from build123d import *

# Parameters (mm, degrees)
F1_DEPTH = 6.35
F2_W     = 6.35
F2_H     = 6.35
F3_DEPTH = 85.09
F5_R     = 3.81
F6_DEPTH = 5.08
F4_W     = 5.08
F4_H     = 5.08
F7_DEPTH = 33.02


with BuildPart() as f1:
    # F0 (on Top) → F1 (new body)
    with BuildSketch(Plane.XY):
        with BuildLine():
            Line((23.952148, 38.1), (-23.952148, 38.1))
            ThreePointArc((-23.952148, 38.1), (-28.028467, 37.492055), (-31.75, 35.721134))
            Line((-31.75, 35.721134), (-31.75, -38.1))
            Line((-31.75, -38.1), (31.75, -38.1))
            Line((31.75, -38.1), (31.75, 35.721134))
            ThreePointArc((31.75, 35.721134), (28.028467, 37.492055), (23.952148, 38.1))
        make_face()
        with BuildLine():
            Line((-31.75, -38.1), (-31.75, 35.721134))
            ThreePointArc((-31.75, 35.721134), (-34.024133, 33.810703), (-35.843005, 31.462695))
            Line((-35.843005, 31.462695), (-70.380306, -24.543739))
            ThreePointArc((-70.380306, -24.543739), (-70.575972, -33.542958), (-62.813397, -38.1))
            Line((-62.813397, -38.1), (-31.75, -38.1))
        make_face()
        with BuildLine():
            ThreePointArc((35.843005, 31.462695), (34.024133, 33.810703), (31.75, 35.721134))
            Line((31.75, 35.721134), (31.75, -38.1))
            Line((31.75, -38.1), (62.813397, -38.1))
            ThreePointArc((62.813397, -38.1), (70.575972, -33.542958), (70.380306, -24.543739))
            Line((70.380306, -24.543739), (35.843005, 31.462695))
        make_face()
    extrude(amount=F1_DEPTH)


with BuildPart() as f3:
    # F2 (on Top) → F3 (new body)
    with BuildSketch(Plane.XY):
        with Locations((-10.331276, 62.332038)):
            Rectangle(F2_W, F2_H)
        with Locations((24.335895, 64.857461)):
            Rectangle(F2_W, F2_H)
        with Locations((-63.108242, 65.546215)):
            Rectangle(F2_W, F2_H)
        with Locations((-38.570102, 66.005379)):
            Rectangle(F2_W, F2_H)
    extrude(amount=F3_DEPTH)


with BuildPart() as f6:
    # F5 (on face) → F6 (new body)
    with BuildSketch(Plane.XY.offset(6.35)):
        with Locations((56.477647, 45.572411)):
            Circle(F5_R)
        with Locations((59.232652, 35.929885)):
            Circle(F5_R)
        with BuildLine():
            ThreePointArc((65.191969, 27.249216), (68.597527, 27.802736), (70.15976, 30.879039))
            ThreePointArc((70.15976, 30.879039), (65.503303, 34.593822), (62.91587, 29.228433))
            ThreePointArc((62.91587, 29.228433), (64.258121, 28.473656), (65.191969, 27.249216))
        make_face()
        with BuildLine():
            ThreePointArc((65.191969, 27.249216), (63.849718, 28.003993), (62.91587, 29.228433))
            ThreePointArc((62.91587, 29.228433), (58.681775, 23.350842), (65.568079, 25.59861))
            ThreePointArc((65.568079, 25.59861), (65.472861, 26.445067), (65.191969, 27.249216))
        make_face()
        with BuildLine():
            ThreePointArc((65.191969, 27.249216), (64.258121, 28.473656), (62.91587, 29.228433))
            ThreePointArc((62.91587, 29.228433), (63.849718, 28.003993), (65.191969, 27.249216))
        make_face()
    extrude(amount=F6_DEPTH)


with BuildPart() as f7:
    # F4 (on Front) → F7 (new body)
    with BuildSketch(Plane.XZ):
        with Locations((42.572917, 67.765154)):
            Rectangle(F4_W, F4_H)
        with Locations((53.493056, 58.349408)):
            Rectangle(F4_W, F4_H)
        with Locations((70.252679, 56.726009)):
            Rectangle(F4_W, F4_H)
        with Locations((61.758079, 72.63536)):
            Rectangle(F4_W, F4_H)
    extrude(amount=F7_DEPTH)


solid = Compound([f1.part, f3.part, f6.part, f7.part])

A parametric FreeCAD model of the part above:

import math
import FreeCAD as App
import Part
import Sketcher
Q = App.Units.Quantity

doc = App.newDocument("Part")
body = doc.addObject("PartDesign::Body", "Body")

sketch1 = doc.addObject("Sketcher::SketchObject", "Sketch")
body.addObject(sketch1)
sketch1.AttachmentSupport = (doc.XY_Plane, [""])
sketch1.MapMode = "FlatFace"
sketch1.addGeometry([
    Part.LineSegment(App.Vector(24, 38, 0), App.Vector(-24, 38, 0)),
    Part.ArcOfCircle(Part.Circle(App.Vector(-24, 24, 0), App.Vector(0, 0, 1), 14), math.radians(90), math.radians(124)),
    Part.ArcOfCircle(Part.Circle(App.Vector(-24, 24, 0), App.Vector(0, 0, 1), 14), math.radians(124), math.radians(148)),
    Part.LineSegment(App.Vector(-36, 31, 0), App.Vector(-70, -25, 0)),
    Part.ArcOfCircle(Part.Circle(App.Vector(-63, -29, 0), App.Vector(0, 0, 1), 9), math.radians(148), math.radians(270)),
    Part.LineSegment(App.Vector(-63, -38, 0), App.Vector(63, -38, 0)),
    Part.ArcOfCircle(Part.Circle(App.Vector(63, -29, 0), App.Vector(0, 0, 1), 9), math.radians(-90), math.radians(32)),
    Part.LineSegment(App.Vector(70, -25, 0), App.Vector(36, 31, 0)),
    Part.ArcOfCircle(Part.Circle(App.Vector(24, 24, 0), App.Vector(0, 0, 1), 14), math.radians(32), math.radians(56)),
    Part.ArcOfCircle(Part.Circle(App.Vector(24, 24, 0), App.Vector(0, 0, 1), 14), math.radians(56), math.radians(90)),
], False)
sketch1.addConstraint([
    Sketcher.Constraint("Tangent", 0, 2, 1, 1),
    Sketcher.Constraint("Tangent", 1, 2, 2, 1),
    Sketcher.Constraint("Tangent", 2, 2, 3, 1),
    Sketcher.Constraint("Tangent", 3, 2, 4, 1),
    Sketcher.Constraint("Tangent", 4, 2, 5, 1),
    Sketcher.Constraint("Tangent", 5, 2, 6, 1),
    Sketcher.Constraint("Tangent", 6, 2, 7, 1),
    Sketcher.Constraint("Tangent", 7, 2, 8, 1),
    Sketcher.Constraint("Tangent", 8, 2, 9, 1),
    Sketcher.Constraint("Tangent", 9, 2, 0, 1),
    Sketcher.Constraint("Horizontal", 0),
    Sketcher.Constraint("Horizontal", 5),
    Sketcher.Constraint("Equal", 4, 6),
    Sketcher.Constraint("Equal", 2, 8),
    Sketcher.Constraint("Equal", 1, 9),
    Sketcher.Constraint("Symmetric", 1, 3, 8, 3, -2),
    Sketcher.Constraint("Horizontal", 3, 2, 6, 2),
    Sketcher.Constraint("Horizontal", 1, 2, 8, 2),
    Sketcher.Constraint("Radius", 1, Q("0.55 in")),
    Sketcher.Constraint("Radius", 4, Q("0.35 in")),
    Sketcher.Constraint("DistanceY", -1, 1, 0, 2, Q("1.5 in")),
    Sketcher.Constraint("DistanceY", 4, 2, -1, 1, Q("1.5 in")),
    Sketcher.Constraint("DistanceX", 1, 2, -1, 1, Q("1.25 in")),
    Sketcher.Constraint("DistanceX", 1, 3, 8, 3, Q("47.904299 mm")),
    Sketcher.Constraint("DistanceX", 3, 2, 2, 2, Q("34.537301 mm")),
])
pad1 = doc.addObject("PartDesign::Pad", "Pad")
body.addObject(pad1)
pad1.Profile = sketch1
pad1.Length = Q("0.25 in")
body2 = doc.addObject("PartDesign::Body", "Body001")
body2.AllowCompound = True

sketch2 = doc.addObject("Sketcher::SketchObject", "Sketch001")
body2.addObject(sketch2)
sketch2.AttachmentSupport = (doc.getObject("XY_Plane001"), [""])
sketch2.MapMode = "FlatFace"
sketch2.addGeometry([
    Part.LineSegment(App.Vector(-14, 66, 0), App.Vector(-14, 59, 0)),
    Part.LineSegment(App.Vector(-14, 59, 0), App.Vector(-7, 59, 0)),
    Part.LineSegment(App.Vector(-7, 59, 0), App.Vector(-7, 66, 0)),
    Part.LineSegment(App.Vector(-7, 66, 0), App.Vector(-14, 66, 0)),
    Part.LineSegment(App.Vector(21, 68, 0), App.Vector(21, 62, 0)),
    Part.LineSegment(App.Vector(21, 62, 0), App.Vector(28, 62, 0)),
    Part.LineSegment(App.Vector(28, 62, 0), App.Vector(28, 68, 0)),
    Part.LineSegment(App.Vector(28, 68, 0), App.Vector(21, 68, 0)),
    Part.LineSegment(App.Vector(-66, 69, 0), App.Vector(-66, 62, 0)),
    Part.LineSegment(App.Vector(-66, 62, 0), App.Vector(-60, 62, 0)),
    Part.LineSegment(App.Vector(-60, 62, 0), App.Vector(-60, 69, 0)),
    Part.LineSegment(App.Vector(-60, 69, 0), App.Vector(-66, 69, 0)),
    Part.LineSegment(App.Vector(-42, 69, 0), App.Vector(-42, 63, 0)),
    Part.LineSegment(App.Vector(-42, 63, 0), App.Vector(-35, 63, 0)),
    Part.LineSegment(App.Vector(-35, 63, 0), App.Vector(-35, 69, 0)),
    Part.LineSegment(App.Vector(-35, 69, 0), App.Vector(-42, 69, 0)),
], False)
sketch2.addConstraint([
    Sketcher.Constraint("Coincident", 0, 2, 1, 1),
    Sketcher.Constraint("Coincident", 1, 2, 2, 1),
    Sketcher.Constraint("Coincident", 2, 2, 3, 1),
    Sketcher.Constraint("Coincident", 3, 2, 0, 1),
    Sketcher.Constraint("Coincident", 4, 2, 5, 1),
    Sketcher.Constraint("Coincident", 5, 2, 6, 1),
    Sketcher.Constraint("Coincident", 6, 2, 7, 1),
    Sketcher.Constraint("Coincident", 7, 2, 4, 1),
    Sketcher.Constraint("Coincident", 8, 2, 9, 1),
    Sketcher.Constraint("Coincident", 9, 2, 10, 1),
    Sketcher.Constraint("Coincident", 10, 2, 11, 1),
    Sketcher.Constraint("Coincident", 11, 2, 8, 1),
    Sketcher.Constraint("Coincident", 12, 2, 13, 1),
    Sketcher.Constraint("Coincident", 13, 2, 14, 1),
    Sketcher.Constraint("Coincident", 14, 2, 15, 1),
    Sketcher.Constraint("Coincident", 15, 2, 12, 1),
    Sketcher.Constraint("Vertical", 0),
    Sketcher.Constraint("Horizontal", 1),
    Sketcher.Constraint("Vertical", 2),
    Sketcher.Constraint("Horizontal", 3),
    Sketcher.Constraint("Vertical", 4),
    Sketcher.Constraint("Horizontal", 5),
    Sketcher.Constraint("Vertical", 6),
    Sketcher.Constraint("Horizontal", 7),
    Sketcher.Constraint("Vertical", 8),
    Sketcher.Constraint("Horizontal", 9),
    Sketcher.Constraint("Vertical", 10),
    Sketcher.Constraint("Horizontal", 11),
    Sketcher.Constraint("Vertical", 12),
    Sketcher.Constraint("Horizontal", 13),
    Sketcher.Constraint("Vertical", 14),
    Sketcher.Constraint("Horizontal", 15),
    Sketcher.Constraint("Equal", 3, 5),
    Sketcher.Constraint("Equal", 7, 9),
    Sketcher.Constraint("Equal", 11, 13),
    Sketcher.Constraint("Equal", 15, 0),
    Sketcher.Constraint("Equal", 2, 4),
    Sketcher.Constraint("Equal", 6, 8),
    Sketcher.Constraint("Equal", 10, 12),
    Sketcher.Constraint("DistanceX", 1, 1, 1, 2, Q("0.25 in")),
    Sketcher.Constraint("DistanceY", -1, 1, 4, 2, Q("61.682461 mm")),
    Sketcher.Constraint("DistanceX", 8, 2, -1, 1, Q("66.283242 mm")),
    Sketcher.Constraint("DistanceY", -1, 1, 12, 2, Q("62.830379 mm")),
    Sketcher.Constraint("DistanceX", 1, 2, 4, 2, Q("28.317171 mm")),
    Sketcher.Constraint("DistanceX", 9, 2, 12, 2, Q("18.18814 mm")),
    Sketcher.Constraint("DistanceY", 12, 2, 3, 2, Q("2.676659 mm")),
    Sketcher.Constraint("DistanceX", 0, 2, -1, 1, Q("13.506276 mm")),
    Sketcher.Constraint("DistanceY", -1, 1, 8, 2, Q("62.371215 mm")),
])
pad2 = doc.addObject("PartDesign::Pad", "Pad001")
body2.addObject(pad2)
pad2.Profile = sketch2
pad2.Length = Q("3.35 in")
body3 = doc.addObject("PartDesign::Body", "Body002")
body3.AllowCompound = True

sketch3 = doc.addObject("Sketcher::SketchObject", "Sketch002")
body3.addObject(sketch3)
sketch3.AttachmentSupport = (doc.getObject("XY_Plane002"), [""])
sketch3.MapMode = "FlatFace"
sketch3.AttachmentOffset = App.Placement(App.Vector(0, 0, 0.25 * 25.4), App.Rotation())
sketch3.addGeometry([
    Part.Circle(App.Vector(56.5, 45.6, 0), App.Vector(0, 0, 1), 3.8),
    Part.Circle(App.Vector(59.2, 35.9, 0), App.Vector(0, 0, 1), 3.8),
    Part.ArcOfCircle(Part.Circle(App.Vector(66.3, 30.9, 0), App.Vector(0, 0, 1), 3.8), math.radians(0), math.radians(206)),
    Part.ArcOfCircle(Part.Circle(App.Vector(61.8, 25.6, 0), App.Vector(0, 0, 1), 3.8), math.radians(72), math.radians(360)),
    Part.ArcOfCircle(Part.Circle(App.Vector(61.8, 25.6, 0), App.Vector(0, 0, 1), 3.8), math.radians(0), math.radians(26)),
    Part.ArcOfCircle(Part.Circle(App.Vector(66.3, 30.9, 0), App.Vector(0, 0, 1), 3.8), math.radians(-108), math.radians(0)),
], False)
sketch3.addConstraint([
    Sketcher.Constraint("Coincident", 2, 2, 3, 1),
    Sketcher.Constraint("Tangent", 3, 2, 4, 1),
    Sketcher.Constraint("Coincident", 4, 2, 5, 1),
    Sketcher.Constraint("Tangent", 5, 2, 2, 1),
    Sketcher.Constraint("Equal", 0, 1),
    Sketcher.Constraint("Equal", 1, 2),
    Sketcher.Constraint("Equal", 2, 3),
    Sketcher.Constraint("Equal", 3, 5),
    Sketcher.Constraint("Horizontal", 2, 3, 5, 2),
    Sketcher.Constraint("Diameter", 0, Q("0.3 in")),
    Sketcher.Constraint("Radius", 4, Q("3.810029 mm")),
    Sketcher.Constraint("DistanceY", 3, 3, 0, 3, Q("19.973802 mm")),
    Sketcher.Constraint("DistanceX", 1, 3, 4, 3, Q("2.525398 mm")),
    Sketcher.Constraint("DistanceX", 2, 2, 4, 2, Q("2.276099 mm")),
    Sketcher.Constraint("DistanceY", -1, 1, 0, 3, Q("45.572411 mm")),
    Sketcher.Constraint("DistanceX", -1, 1, 2, 3, Q("66.34976 mm")),
    Sketcher.Constraint("DistanceY", -1, 1, 2, 3, Q("30.879039 mm")),
    Sketcher.Constraint("DistanceY", -1, 1, 3, 2, Q("25.59861 mm")),
    Sketcher.Constraint("DistanceX", 0, 3, 3, 3, Q("5.280432 mm")),
    Sketcher.Constraint("DistanceY", 4, 3, 1, 3, Q("10.331281 mm")),
])
pad3 = doc.addObject("PartDesign::Pad", "Pad002")
body3.addObject(pad3)
pad3.Profile = sketch3
pad3.Length = Q("0.2 in")
body4 = doc.addObject("PartDesign::Body", "Body003")
body4.AllowCompound = True

sketch4 = doc.addObject("Sketcher::SketchObject", "Sketch003")
body4.addObject(sketch4)
sketch4.AttachmentSupport = (doc.getObject("XZ_Plane003"), [""])
sketch4.MapMode = "FlatFace"
sketch4.addGeometry([
    Part.LineSegment(App.Vector(40, 70, 0), App.Vector(40, 65, 0)),
    Part.LineSegment(App.Vector(40, 65, 0), App.Vector(45, 65, 0)),
    Part.LineSegment(App.Vector(45, 65, 0), App.Vector(45, 70, 0)),
    Part.LineSegment(App.Vector(45, 70, 0), App.Vector(40, 70, 0)),
    Part.LineSegment(App.Vector(51, 61, 0), App.Vector(51, 56, 0)),
    Part.LineSegment(App.Vector(51, 56, 0), App.Vector(56, 56, 0)),
    Part.LineSegment(App.Vector(56, 56, 0), App.Vector(56, 61, 0)),
    Part.LineSegment(App.Vector(56, 61, 0), App.Vector(51, 61, 0)),
    Part.LineSegment(App.Vector(68, 59, 0), App.Vector(68, 54, 0)),
    Part.LineSegment(App.Vector(68, 54, 0), App.Vector(73, 54, 0)),
    Part.LineSegment(App.Vector(73, 54, 0), App.Vector(73, 59, 0)),
    Part.LineSegment(App.Vector(73, 59, 0), App.Vector(68, 59, 0)),
    Part.LineSegment(App.Vector(59, 75, 0), App.Vector(59, 70, 0)),
    Part.LineSegment(App.Vector(59, 70, 0), App.Vector(64, 70, 0)),
    Part.LineSegment(App.Vector(64, 70, 0), App.Vector(64, 75, 0)),
    Part.LineSegment(App.Vector(64, 75, 0), App.Vector(59, 75, 0)),
], False)
sketch4.addConstraint([
    Sketcher.Constraint("Coincident", 0, 2, 1, 1),
    Sketcher.Constraint("Coincident", 1, 2, 2, 1),
    Sketcher.Constraint("Coincident", 2, 2, 3, 1),
    Sketcher.Constraint("Coincident", 3, 2, 0, 1),
    Sketcher.Constraint("Coincident", 4, 2, 5, 1),
    Sketcher.Constraint("Coincident", 5, 2, 6, 1),
    Sketcher.Constraint("Coincident", 6, 2, 7, 1),
    Sketcher.Constraint("Coincident", 7, 2, 4, 1),
    Sketcher.Constraint("Coincident", 8, 2, 9, 1),
    Sketcher.Constraint("Coincident", 9, 2, 10, 1),
    Sketcher.Constraint("Coincident", 10, 2, 11, 1),
    Sketcher.Constraint("Coincident", 11, 2, 8, 1),
    Sketcher.Constraint("Coincident", 12, 2, 13, 1),
    Sketcher.Constraint("Coincident", 13, 2, 14, 1),
    Sketcher.Constraint("Coincident", 14, 2, 15, 1),
    Sketcher.Constraint("Coincident", 15, 2, 12, 1),
    Sketcher.Constraint("Vertical", 0),
    Sketcher.Constraint("Horizontal", 1),
    Sketcher.Constraint("Vertical", 2),
    Sketcher.Constraint("Horizontal", 3),
    Sketcher.Constraint("Vertical", 4),
    Sketcher.Constraint("Horizontal", 5),
    Sketcher.Constraint("Vertical", 6),
    Sketcher.Constraint("Horizontal", 7),
    Sketcher.Constraint("Vertical", 8),
    Sketcher.Constraint("Horizontal", 9),
    Sketcher.Constraint("Vertical", 10),
    Sketcher.Constraint("Horizontal", 11),
    Sketcher.Constraint("Vertical", 12),
    Sketcher.Constraint("Horizontal", 13),
    Sketcher.Constraint("Vertical", 14),
    Sketcher.Constraint("Horizontal", 15),
    Sketcher.Constraint("Equal", 3, 5),
    Sketcher.Constraint("Equal", 7, 9),
    Sketcher.Constraint("Equal", 11, 13),
    Sketcher.Constraint("Equal", 15, 0),
    Sketcher.Constraint("Equal", 2, 4),
    Sketcher.Constraint("Equal", 6, 8),
    Sketcher.Constraint("Equal", 10, 12),
    Sketcher.Constraint("DistanceX", 1, 1, 1, 2, Q("0.2 in")),
    Sketcher.Constraint("DistanceY", 8, 2, 5, 2, Q("1.623399 mm")),
    Sketcher.Constraint("DistanceX", 12, 2, 11, 2, Q("8.4946 mm")),
    Sketcher.Constraint("DistanceY", -1, 1, 6, 2, Q("60.889408 mm")),
    Sketcher.Constraint("DistanceX", -1, 1, 8, 2, Q("67.712679 mm")),
    Sketcher.Constraint("DistanceY", -1, 1, 12, 2, Q("70.09536 mm")),
    Sketcher.Constraint("DistanceX", 1, 2, 4, 2, Q("5.840139 mm")),
    Sketcher.Constraint("DistanceX", 1, 2, 8, 2, Q("22.599762 mm")),
    Sketcher.Constraint("DistanceY", -1, 1, 0, 2, Q("65.225154 mm")),
])
pad4 = doc.addObject("PartDesign::Pad", "Pad003")
body4.addObject(pad4)
pad4.Profile = sketch4
pad4.Length = Q("1.3 in")

doc.recompute()
